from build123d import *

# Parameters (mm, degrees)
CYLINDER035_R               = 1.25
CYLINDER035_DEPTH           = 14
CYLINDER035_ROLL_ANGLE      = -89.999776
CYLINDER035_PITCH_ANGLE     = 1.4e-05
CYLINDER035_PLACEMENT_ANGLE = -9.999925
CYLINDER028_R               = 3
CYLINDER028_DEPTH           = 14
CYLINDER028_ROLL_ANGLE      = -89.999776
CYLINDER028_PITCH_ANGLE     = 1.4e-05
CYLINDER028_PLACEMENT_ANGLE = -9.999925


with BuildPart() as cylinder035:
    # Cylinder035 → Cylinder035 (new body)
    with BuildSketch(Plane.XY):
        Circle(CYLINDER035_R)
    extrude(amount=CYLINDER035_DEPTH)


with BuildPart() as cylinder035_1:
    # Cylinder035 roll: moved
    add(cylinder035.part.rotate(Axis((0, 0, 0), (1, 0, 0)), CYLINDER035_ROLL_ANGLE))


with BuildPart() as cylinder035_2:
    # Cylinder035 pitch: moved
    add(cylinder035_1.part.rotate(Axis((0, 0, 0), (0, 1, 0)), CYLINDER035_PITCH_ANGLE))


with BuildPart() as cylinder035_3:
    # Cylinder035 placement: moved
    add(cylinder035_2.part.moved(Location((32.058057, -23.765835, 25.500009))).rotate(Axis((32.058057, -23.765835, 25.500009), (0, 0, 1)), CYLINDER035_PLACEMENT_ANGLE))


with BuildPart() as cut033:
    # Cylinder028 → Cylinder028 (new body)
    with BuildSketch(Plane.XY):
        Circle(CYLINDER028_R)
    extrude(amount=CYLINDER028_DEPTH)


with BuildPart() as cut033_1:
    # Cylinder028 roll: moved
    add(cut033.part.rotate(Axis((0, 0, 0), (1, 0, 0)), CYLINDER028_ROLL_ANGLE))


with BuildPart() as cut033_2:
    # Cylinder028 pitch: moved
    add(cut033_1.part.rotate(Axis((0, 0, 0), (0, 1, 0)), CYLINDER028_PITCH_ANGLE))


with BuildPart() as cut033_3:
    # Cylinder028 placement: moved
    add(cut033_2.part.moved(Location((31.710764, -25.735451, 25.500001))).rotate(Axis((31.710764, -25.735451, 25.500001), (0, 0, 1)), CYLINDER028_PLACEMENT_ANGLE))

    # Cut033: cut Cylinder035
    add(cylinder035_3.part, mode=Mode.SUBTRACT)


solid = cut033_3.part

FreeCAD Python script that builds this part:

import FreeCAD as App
import Part
import Sketcher

V = App.Vector
Q = App.Units.Quantity

doc = App.newDocument("Part")
body = doc.addObject("PartDesign::Body", "Body")

# Sketch on XY plane
sketch1 = doc.addObject("Sketcher::SketchObject", "Sketch")
body.addObject(sketch1)
sketch1.AttachmentSupport = (doc.XY_Plane, [""])
sketch1.MapMode = "FlatFace"
sketch1.addGeometry(Part.Circle(V(0, 0, 0), V(0, 0, 1), 1.2), False)
sketch1.addConstraint([
    Sketcher.Constraint("Coincident", 0, 3, -1, 1),
    Sketcher.Constraint("Diameter", 0, Q("2.5 mm")),
])
pad1 = doc.addObject("PartDesign::Pad", "Pad")
body.addObject(pad1)
pad1.Profile = sketch1
pad1.Length = 14
body2 = doc.addObject("PartDesign::Body", "Body001")
doc.recompute()

body.Placement = App.Placement(V(0, 0, 0), App.Rotation(V(1, 0, 0), 270.000224))
boolean = doc.addObject("PartDesign::Boolean", "Boolean")
body2.addObject(boolean)
boolean.Type = "Fuse"
boolean.addObjects([body])
body3 = doc.addObject("PartDesign::Body", "Body002")
doc.recompute()

body2.Placement = App.Placement(V(0, 0, 0), App.Rotation(V(0, 1, 0), 0.000014))
boolean2 = doc.addObject("PartDesign::Boolean", "Boolean001")
body3.addObject(boolean2)
boolean2.Type = "Fuse"
boolean2.addObjects([body2])
body4 = doc.addObject("PartDesign::Body", "Body003")
doc.recompute()

body3.Placement = App.Placement(V(32.058057, -23.765835, 25.500009), App.Rotation(V(0, 0, 1), 350.000075))
boolean3 = doc.addObject("PartDesign::Boolean", "Boolean002")
body4.addObject(boolean3)
boolean3.Type = "Fuse"
boolean3.addObjects([body3])
body5 = doc.addObject("PartDesign::Body", "Body004")

# Sketch on XY plane
sketch2 = doc.addObject("Sketcher::SketchObject", "Sketch001")
body5.addObject(sketch2)
sketch2.AttachmentSupport = (doc.getObject("XY_Plane004"), [""])
sketch2.MapMode = "FlatFace"
sketch2.addGeometry(Part.Circle(V(0, 0, 0), V(0, 0, 1), 3), False)
sketch2.addConstraint([
    Sketcher.Constraint("Coincident", 0, 3, -1, 1),
    Sketcher.Constraint("Diameter", 0, Q("6 mm")),
])
pad2 = doc.addObject("PartDesign::Pad", "Pad001")
body5.addObject(pad2)
pad2.Profile = sketch2
pad2.Length = 14
body6 = doc.addObject("PartDesign::Body", "Body005")
doc.recompute()

body5.Placement = App.Placement(V(0, 0, 0), App.Rotation(V(1, 0, 0), 270.000224))
boolean4 = doc.addObject("PartDesign::Boolean", "Boolean003")
body6.addObject(boolean4)
boolean4.Type = "Fuse"
boolean4.addObjects([body5])
body7 = doc.addObject("PartDesign::Body", "Body006")
doc.recompute()

body6.Placement = App.Placement(V(0, 0, 0), App.Rotation(V(0, 1, 0), 0.000014))
boolean5 = doc.addObject("PartDesign::Boolean", "Boolean004")
body7.addObject(boolean5)
boolean5.Type = "Fuse"
boolean5.addObjects([body6])
body8 = doc.addObject("PartDesign::Body", "Body007")
doc.recompute()

body7.Placement = App.Placement(V(31.710764, -25.735451, 25.500001), App.Rotation(V(0, 0, 1), 350.000075))
boolean6 = doc.addObject("PartDesign::Boolean", "Boolean005")
body8.addObject(boolean6)
boolean6.Type = "Fuse"
boolean6.addObjects([body7])
doc.recompute()

boolean7 = doc.addObject("PartDesign::Boolean", "Boolean006")
body8.addObject(boolean7)
boolean7.Type = "Cut"
boolean7.addObjects([body4])

doc.recompute()
